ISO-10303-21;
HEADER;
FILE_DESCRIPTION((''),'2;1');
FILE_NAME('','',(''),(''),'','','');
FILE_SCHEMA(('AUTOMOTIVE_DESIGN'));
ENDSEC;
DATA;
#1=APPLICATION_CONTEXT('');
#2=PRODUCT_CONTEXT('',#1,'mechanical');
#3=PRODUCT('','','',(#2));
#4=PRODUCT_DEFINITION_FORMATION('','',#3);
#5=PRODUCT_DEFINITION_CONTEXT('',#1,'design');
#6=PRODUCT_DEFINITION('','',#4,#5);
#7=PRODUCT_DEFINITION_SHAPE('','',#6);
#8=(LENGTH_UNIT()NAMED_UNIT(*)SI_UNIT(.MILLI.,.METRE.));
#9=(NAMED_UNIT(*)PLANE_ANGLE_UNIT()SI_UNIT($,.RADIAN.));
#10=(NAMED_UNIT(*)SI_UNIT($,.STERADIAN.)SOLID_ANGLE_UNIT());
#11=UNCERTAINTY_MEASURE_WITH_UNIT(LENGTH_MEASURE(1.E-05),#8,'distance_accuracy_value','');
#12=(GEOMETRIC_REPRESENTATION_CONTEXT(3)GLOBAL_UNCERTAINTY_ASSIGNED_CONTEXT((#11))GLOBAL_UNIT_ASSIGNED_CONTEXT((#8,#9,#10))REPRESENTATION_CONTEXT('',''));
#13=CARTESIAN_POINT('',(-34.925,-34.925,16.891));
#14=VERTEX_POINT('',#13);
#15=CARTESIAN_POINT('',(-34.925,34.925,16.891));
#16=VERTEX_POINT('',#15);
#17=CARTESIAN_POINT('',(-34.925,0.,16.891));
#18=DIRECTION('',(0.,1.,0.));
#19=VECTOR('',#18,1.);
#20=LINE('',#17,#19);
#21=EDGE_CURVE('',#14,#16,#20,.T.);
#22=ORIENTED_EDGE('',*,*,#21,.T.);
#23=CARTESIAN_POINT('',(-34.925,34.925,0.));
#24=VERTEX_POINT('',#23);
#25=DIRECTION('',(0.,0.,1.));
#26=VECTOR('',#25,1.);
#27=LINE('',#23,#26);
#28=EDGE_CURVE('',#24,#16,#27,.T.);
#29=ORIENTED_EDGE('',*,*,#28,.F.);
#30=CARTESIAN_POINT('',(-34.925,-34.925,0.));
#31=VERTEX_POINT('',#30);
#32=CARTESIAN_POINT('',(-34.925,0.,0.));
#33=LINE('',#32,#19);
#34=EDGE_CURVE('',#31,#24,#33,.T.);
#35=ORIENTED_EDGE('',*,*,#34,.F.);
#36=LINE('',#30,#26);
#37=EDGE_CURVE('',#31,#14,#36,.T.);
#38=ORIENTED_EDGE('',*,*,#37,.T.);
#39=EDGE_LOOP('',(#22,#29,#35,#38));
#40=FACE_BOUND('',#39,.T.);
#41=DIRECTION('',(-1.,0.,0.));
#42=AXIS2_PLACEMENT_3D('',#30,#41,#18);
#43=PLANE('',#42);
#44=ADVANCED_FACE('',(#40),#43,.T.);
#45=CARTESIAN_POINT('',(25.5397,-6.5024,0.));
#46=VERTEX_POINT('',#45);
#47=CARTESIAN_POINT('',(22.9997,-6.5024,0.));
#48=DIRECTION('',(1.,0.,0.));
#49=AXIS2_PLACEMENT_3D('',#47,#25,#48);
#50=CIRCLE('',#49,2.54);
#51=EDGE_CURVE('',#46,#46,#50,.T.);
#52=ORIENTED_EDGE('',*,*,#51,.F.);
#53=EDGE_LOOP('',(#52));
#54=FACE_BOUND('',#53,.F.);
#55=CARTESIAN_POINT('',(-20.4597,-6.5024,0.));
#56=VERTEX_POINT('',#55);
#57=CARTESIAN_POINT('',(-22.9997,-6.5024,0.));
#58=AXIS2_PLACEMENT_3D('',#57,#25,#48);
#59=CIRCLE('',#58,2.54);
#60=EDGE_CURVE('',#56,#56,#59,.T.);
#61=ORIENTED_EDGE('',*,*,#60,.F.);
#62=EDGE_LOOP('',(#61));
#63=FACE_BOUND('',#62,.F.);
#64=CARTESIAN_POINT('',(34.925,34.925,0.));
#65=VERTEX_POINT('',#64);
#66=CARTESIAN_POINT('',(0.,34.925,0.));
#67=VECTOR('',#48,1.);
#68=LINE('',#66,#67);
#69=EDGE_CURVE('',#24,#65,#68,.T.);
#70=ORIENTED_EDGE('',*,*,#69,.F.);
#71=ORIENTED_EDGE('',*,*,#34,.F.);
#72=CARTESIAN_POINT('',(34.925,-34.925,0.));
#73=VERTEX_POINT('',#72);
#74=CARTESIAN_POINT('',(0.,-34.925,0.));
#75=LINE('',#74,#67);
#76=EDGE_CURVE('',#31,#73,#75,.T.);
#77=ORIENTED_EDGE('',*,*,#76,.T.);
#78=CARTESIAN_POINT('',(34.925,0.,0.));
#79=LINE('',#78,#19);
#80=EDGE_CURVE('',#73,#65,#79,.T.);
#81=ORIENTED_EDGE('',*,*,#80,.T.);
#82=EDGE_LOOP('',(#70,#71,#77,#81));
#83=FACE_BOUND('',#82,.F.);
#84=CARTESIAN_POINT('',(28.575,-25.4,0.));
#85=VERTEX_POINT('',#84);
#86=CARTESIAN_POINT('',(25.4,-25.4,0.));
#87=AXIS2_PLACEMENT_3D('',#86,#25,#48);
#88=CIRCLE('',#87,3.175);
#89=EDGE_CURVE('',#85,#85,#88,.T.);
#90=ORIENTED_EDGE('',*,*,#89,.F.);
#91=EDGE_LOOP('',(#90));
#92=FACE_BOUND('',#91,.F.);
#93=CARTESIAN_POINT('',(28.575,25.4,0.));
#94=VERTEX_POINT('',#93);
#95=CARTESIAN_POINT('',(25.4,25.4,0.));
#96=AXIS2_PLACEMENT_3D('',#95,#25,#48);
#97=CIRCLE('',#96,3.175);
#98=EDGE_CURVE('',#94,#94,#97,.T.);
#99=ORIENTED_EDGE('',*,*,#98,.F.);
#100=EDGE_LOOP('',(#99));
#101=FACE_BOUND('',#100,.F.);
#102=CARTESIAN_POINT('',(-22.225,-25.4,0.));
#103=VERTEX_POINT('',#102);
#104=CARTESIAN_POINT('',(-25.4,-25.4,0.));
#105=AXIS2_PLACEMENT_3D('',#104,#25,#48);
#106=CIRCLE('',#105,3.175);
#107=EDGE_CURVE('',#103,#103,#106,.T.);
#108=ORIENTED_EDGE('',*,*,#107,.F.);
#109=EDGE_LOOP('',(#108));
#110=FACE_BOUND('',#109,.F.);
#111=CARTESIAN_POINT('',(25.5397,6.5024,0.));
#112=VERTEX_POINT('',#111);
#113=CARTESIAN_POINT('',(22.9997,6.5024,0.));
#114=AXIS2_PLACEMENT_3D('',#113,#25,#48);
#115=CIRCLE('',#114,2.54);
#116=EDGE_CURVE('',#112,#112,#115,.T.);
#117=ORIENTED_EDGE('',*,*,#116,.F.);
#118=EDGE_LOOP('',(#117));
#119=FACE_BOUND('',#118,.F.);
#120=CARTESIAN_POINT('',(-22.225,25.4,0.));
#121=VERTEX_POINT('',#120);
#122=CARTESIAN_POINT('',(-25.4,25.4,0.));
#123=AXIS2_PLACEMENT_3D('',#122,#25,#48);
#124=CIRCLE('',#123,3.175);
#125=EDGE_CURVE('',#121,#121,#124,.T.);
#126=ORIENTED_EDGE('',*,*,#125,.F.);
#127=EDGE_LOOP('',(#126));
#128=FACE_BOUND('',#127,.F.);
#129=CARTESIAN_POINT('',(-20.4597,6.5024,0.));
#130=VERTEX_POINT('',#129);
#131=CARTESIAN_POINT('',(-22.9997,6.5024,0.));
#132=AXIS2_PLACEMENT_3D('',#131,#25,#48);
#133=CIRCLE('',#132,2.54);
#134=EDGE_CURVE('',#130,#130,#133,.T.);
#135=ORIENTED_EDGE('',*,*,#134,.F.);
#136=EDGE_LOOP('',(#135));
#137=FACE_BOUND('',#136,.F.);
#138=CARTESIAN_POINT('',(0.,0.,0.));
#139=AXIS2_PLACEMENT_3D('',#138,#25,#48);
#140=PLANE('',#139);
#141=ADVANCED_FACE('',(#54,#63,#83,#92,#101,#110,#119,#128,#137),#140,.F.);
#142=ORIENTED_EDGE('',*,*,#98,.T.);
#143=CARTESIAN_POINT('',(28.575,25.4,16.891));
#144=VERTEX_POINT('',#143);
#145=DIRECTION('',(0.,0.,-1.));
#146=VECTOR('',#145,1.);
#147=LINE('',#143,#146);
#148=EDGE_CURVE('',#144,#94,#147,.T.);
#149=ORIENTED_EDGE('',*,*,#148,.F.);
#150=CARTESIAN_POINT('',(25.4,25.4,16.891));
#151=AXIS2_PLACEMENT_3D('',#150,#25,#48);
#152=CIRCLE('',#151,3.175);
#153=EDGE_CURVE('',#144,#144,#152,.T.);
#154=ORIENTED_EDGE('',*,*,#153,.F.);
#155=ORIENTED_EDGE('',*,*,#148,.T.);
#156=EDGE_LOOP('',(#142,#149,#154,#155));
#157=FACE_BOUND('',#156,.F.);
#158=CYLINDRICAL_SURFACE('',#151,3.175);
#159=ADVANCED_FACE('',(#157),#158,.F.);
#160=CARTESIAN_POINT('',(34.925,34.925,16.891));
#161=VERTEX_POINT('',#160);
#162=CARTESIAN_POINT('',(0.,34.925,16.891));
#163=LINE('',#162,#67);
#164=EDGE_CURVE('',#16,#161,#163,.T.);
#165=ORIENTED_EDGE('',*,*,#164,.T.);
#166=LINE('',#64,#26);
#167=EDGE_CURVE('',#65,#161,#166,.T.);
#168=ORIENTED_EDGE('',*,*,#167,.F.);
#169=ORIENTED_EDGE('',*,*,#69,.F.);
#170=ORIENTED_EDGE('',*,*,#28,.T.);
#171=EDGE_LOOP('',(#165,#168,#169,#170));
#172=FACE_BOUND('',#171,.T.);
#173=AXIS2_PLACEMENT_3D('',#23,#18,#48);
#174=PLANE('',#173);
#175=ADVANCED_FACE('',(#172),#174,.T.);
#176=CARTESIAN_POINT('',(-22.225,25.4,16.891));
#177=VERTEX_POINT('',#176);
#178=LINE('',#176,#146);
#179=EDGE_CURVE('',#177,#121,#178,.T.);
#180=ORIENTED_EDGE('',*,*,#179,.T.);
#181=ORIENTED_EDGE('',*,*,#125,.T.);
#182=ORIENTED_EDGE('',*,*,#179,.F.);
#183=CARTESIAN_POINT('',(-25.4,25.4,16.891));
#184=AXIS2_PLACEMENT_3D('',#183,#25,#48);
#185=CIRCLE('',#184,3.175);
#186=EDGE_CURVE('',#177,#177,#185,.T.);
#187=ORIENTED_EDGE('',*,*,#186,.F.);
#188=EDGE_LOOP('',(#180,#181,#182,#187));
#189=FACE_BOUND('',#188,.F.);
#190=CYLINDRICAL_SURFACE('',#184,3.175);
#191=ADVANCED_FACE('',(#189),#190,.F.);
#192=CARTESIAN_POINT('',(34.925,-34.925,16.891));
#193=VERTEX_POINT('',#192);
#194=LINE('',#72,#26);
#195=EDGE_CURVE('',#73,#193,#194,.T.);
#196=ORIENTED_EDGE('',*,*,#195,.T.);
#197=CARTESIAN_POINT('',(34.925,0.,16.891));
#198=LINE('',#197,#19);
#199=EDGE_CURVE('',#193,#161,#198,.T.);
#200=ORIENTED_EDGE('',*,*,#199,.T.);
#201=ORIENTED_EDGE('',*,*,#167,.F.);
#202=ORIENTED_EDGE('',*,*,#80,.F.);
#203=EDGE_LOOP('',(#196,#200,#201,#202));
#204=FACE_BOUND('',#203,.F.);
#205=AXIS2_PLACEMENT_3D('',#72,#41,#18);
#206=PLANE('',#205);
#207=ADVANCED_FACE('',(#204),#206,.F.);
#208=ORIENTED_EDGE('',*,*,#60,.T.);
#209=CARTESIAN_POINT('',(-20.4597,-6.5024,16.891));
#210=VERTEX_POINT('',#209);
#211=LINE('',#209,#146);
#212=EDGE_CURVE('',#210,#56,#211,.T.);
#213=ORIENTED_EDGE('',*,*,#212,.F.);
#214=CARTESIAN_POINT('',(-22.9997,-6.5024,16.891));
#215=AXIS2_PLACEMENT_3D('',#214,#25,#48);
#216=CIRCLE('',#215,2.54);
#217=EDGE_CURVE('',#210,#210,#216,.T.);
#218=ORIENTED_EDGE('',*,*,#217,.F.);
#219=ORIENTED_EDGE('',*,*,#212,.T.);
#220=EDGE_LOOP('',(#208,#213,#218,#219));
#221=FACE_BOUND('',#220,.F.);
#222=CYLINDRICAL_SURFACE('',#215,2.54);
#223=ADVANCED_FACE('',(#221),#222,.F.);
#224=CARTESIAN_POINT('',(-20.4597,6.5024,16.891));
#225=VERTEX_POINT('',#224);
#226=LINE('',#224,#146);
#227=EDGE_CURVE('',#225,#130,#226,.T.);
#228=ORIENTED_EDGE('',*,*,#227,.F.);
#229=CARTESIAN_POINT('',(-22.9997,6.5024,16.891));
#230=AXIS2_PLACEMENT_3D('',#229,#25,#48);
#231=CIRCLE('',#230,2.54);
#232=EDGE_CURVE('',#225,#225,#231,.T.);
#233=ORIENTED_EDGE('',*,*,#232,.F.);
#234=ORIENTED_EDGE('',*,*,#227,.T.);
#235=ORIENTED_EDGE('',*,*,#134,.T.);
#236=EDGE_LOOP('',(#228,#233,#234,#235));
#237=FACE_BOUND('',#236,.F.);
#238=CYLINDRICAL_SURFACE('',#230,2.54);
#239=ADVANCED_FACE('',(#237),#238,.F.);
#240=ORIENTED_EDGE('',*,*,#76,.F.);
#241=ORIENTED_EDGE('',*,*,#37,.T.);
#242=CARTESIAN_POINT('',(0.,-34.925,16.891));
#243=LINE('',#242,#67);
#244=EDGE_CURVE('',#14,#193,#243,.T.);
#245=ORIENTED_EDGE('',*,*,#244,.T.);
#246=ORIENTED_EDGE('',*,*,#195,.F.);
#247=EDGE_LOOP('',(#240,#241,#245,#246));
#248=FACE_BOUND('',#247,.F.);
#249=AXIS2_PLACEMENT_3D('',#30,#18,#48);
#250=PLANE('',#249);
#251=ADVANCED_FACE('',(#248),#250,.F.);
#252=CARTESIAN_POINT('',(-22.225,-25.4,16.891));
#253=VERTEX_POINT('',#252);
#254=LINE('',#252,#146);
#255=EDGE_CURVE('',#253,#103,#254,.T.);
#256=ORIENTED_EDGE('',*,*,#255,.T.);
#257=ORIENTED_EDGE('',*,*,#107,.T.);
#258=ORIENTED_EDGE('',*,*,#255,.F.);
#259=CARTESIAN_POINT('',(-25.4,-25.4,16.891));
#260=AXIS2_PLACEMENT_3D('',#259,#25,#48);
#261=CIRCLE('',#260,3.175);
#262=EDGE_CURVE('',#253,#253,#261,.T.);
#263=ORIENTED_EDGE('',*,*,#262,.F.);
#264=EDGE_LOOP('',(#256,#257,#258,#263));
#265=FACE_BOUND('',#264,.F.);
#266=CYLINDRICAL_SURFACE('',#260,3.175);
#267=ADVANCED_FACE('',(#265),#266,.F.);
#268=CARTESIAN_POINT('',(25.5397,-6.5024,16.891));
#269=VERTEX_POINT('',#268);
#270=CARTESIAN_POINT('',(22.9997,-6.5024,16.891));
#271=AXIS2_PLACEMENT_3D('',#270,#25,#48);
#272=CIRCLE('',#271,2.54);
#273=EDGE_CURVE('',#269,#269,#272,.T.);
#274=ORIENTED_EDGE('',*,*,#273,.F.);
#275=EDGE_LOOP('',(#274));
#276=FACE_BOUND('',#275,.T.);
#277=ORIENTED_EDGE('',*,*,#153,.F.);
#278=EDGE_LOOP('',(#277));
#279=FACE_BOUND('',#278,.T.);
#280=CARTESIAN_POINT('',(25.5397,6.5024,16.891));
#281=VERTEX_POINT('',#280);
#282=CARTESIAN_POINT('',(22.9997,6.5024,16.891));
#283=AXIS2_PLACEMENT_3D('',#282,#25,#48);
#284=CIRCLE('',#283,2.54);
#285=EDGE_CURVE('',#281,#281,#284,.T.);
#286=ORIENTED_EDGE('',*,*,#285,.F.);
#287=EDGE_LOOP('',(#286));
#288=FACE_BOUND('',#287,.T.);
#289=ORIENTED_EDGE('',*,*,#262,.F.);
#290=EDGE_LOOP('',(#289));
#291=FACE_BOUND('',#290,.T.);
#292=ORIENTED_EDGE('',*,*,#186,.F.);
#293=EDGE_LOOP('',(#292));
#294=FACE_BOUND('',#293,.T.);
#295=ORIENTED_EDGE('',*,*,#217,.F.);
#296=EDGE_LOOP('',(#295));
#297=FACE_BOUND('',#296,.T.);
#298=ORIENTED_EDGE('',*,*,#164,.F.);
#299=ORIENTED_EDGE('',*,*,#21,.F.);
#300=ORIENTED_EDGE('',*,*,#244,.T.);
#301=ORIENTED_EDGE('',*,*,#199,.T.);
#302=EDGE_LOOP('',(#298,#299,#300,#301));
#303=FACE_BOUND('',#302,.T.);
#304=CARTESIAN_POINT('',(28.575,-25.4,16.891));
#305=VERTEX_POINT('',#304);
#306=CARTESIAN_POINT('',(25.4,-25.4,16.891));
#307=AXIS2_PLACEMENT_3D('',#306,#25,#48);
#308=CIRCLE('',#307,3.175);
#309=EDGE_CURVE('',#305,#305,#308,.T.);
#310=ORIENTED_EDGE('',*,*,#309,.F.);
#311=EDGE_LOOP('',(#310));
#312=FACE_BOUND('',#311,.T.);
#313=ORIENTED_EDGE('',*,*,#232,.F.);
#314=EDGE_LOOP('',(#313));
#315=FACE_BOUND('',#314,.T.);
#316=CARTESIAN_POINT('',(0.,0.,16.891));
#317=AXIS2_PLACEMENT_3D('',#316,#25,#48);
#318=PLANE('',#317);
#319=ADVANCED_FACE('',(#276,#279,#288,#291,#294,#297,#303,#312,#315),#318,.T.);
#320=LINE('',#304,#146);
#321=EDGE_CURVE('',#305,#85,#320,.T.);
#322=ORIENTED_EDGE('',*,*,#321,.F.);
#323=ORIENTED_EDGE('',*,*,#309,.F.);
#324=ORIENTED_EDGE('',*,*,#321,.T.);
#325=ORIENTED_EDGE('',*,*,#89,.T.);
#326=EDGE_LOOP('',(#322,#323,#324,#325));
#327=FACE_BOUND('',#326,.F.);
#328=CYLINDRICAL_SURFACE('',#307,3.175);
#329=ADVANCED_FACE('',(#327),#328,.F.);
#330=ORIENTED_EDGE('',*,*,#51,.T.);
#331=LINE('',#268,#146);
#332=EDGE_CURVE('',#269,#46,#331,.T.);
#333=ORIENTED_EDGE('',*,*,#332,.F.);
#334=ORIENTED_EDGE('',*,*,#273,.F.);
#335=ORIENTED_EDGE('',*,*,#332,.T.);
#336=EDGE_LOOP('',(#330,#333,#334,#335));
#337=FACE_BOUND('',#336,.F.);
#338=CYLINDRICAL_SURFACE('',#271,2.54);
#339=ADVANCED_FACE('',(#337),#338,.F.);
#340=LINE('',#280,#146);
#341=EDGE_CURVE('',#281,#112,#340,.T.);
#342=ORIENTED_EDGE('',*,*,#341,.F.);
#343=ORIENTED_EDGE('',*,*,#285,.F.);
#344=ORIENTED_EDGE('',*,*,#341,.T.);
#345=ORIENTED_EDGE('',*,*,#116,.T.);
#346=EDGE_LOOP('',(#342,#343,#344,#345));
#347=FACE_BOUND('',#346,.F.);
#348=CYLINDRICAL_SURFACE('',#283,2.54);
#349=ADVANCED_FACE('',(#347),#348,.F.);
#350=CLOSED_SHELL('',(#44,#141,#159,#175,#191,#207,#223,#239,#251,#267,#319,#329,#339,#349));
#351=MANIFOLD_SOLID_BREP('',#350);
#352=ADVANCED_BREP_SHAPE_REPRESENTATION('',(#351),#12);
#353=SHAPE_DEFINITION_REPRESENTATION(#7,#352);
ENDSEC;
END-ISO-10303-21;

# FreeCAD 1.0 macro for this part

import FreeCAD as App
import Part
import Sketcher

V = App.Vector
Q = App.Units.Quantity


def add_polygon(sketch, points):
    """Adds a closed chain of lines whose ends are joined by coincident constraints."""
    first, n = sketch.GeometryCount, len(points)
    for a, b in zip(points, points[1:] + points[:1]):
        sketch.addGeometry(Part.LineSegment(App.Vector(*a, 0), App.Vector(*b, 0)), False)
    for i in range(n):
        sketch.addConstraint(Sketcher.Constraint("Coincident", first + i, 2, first + (i + 1) % n, 1))

doc = App.newDocument("Part")
body = doc.addObject("PartDesign::Body", "Body")

sketch1 = body.newObject("Sketcher::SketchObject", "Sketch")
sketch1.AttachmentSupport = (doc.getObject("XY_Plane"), [""])
sketch1.MapMode = "FlatFace"
add_polygon(sketch1, [(-34.925, 34.925), (-34.925, -34.925), (34.925, -34.925), (34.925, 34.925)])
sketch1.addConstraint(Sketcher.Constraint("Vertical", 0))
sketch1.addConstraint(Sketcher.Constraint("Horizontal", 1))
sketch1.addConstraint(Sketcher.Constraint("Vertical", 2))
sketch1.addConstraint(Sketcher.Constraint("Horizontal", 3))
sketch1.addConstraint(Sketcher.Constraint("Symmetric", 0, 2, 2, 2, -1, 1))
sketch1.addConstraint(Sketcher.Constraint("Equal", 3, 0))
sketch1.addConstraint(Sketcher.Constraint("DistanceX", 1, 1, 1, 2, Q("2.75 in")))
pad1 = body.newObject("PartDesign::Pad", "Pad")
pad1.Profile = sketch1
pad1.Length = Q("0.665 in")

sketch2 = body.newObject("Sketcher::SketchObject", "Sketch001")
sketch2.AttachmentSupport = (doc.getObject("XY_Plane"), [""])
sketch2.MapMode = "FlatFace"
sketch2.AttachmentOffset = App.Placement(V(0, 0, 0.665 * 25.4), App.Rotation())
sketch2.addGeometry(Part.Circle(V(-22.9997, 6.5024, 0), V(0, 0, 1), 2.54), False)
sketch2.addGeometry(Part.Circle(V(22.9997, 6.5024, 0), V(0, 0, 1), 2.54), False)
sketch2.addGeometry(Part.Circle(V(22.9997, -6.5024, 0), V(0, 0, 1), 2.54), False)
sketch2.addGeometry(Part.Circle(V(-22.9997, -6.5024, 0), V(0, 0, 1), 2.54), False)
sketch2.addConstraint(Sketcher.Constraint("Equal", 0, 1))
sketch2.addConstraint(Sketcher.Constraint("Equal", 1, 2))
sketch2.addConstraint(Sketcher.Constraint("Equal", 2, 3))
sketch2.addConstraint(Sketcher.Constraint("Symmetric", 0, 3, 2, 3, -1, 1))
sketch2.addConstraint(Sketcher.Constraint("Symmetric", 1, 3, 3, 3, -1, 1))
sketch2.addConstraint(Sketcher.Constraint("Symmetric", 0, 3, 1, 3, -2))
sketch2.addConstraint(Sketcher.Constraint("Diameter", 0, Q("0.2 in")))
sketch2.addConstraint(Sketcher.Constraint("DistanceY", -1, 1, 0, 3, Q("0.256 in")))
sketch2.addConstraint(Sketcher.Constraint("DistanceX", 0, 3, 1, 3, Q("1.811 in")))
pocket1 = body.newObject("PartDesign::Pocket", "Pocket")
pocket1.Profile = sketch2
pocket1.Type = "ThroughAll"

sketch3 = body.newObject("Sketcher::SketchObject", "Sketch002")
sketch3.AttachmentSupport = (doc.getObject("XY_Plane"), [""])
sketch3.MapMode = "FlatFace"
sketch3.AttachmentOffset = App.Placement(V(0, 0, 0.665 * 25.4), App.Rotation())
sketch3.addGeometry(Part.Circle(V(-25.4, 25.4, 0), V(0, 0, 1), 3.175), False)
sketch3.addGeometry(Part.Circle(V(25.4, 25.4, 0), V(0, 0, 1), 3.175), False)
sketch3.addGeometry(Part.Circle(V(-25.4, -25.4, 0), V(0, 0, 1), 3.175), False)
sketch3.addGeometry(Part.Circle(V(25.4, -25.4, 0), V(0, 0, 1), 3.175), False)
sketch3.addConstraint(Sketcher.Constraint("Equal", 0, 1))
sketch3.addConstraint(Sketcher.Constraint("Equal", 1, 2))
sketch3.addConstraint(Sketcher.Constraint("Equal", 2, 3))
sketch3.addConstraint(Sketcher.Constraint("Symmetric", 1, 3, 2, 3, -1, 1))
sketch3.addConstraint(Sketcher.Constraint("Symmetric", 0, 3, 3, 3, -1, 1))
sketch3.addConstraint(Sketcher.Constraint("Symmetric", 0, 3, 1, 3, -2))
sketch3.addConstraint(Sketcher.Constraint("Diameter", 0, Q("0.25 in")))
sketch3.addConstraint(Sketcher.Constraint("DistanceX", 0, 3, -1, 1, Q("1 in")))
sketch3.addConstraint(Sketcher.Constraint("DistanceY", -1, 1, 0, 3, Q("1 in")))
pocket2 = body.newObject("PartDesign::Pocket", "Pocket001")
pocket2.Profile = sketch3
pocket2.Type = "ThroughAll"

doc.recompute()
